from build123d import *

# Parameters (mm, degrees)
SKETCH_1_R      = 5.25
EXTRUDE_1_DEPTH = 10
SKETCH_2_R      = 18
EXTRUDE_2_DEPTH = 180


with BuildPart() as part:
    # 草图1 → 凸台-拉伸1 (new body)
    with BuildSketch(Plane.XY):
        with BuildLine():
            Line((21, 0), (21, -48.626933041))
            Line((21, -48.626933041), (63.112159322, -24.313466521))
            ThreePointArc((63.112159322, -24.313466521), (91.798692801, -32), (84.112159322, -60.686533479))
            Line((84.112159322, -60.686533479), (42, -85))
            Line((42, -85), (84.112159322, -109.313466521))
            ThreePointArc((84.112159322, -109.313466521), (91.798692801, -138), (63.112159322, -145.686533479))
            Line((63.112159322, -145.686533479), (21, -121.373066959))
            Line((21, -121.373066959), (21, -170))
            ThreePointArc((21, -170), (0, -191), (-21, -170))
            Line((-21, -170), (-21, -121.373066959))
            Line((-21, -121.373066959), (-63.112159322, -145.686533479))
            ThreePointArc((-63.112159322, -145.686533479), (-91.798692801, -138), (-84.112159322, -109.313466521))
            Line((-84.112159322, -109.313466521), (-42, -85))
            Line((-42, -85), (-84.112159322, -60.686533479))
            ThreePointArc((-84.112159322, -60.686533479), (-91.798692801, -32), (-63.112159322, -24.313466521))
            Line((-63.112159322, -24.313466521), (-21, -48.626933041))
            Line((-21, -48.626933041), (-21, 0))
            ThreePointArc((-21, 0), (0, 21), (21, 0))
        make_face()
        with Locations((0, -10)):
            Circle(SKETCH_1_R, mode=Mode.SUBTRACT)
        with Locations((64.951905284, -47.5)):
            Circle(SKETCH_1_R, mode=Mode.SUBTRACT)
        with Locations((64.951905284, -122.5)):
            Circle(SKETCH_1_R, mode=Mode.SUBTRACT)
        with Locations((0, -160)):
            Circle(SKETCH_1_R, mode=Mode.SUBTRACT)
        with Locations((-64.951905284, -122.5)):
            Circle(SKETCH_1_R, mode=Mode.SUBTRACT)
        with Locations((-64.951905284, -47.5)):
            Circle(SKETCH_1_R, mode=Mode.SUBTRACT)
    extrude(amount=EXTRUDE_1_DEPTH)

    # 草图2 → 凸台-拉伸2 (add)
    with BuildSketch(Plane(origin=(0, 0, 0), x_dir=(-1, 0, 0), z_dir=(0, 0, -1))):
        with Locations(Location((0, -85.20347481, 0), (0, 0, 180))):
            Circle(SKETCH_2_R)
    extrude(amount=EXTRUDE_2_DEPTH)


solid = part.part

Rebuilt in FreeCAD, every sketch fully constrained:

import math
import FreeCAD as App
import Part
import Sketcher

V = App.Vector
Q = App.Units.Quantity

doc = App.newDocument("Part")
body = doc.addObject("PartDesign::Body", "Body")

# Sketch on XY plane
sketch1 = body.newObject("Sketcher::SketchObject", "Sketch")
sketch1.AttachmentSupport = (doc.getObject("XY_Plane"), [""])
sketch1.MapMode = "FlatFace"
sketch1.addGeometry(Part.LineSegment(V(21, -49, 0), V(21, 0, 0)), False)
sketch1.addGeometry(Part.ArcOfCircle(Part.Circle(V(0, 0, 0), V(0, 0, 1), 21), math.radians(0), math.radians(180)), False)
sketch1.addGeometry(Part.LineSegment(V(-21, 0, 0), V(-21, -49, 0)), False)
sketch1.addGeometry(Part.LineSegment(V(-21, -49, 0), V(-63, -24, 0)), False)
sketch1.addGeometry(Part.ArcOfCircle(Part.Circle(V(-74, -42, 0), V(0, 0, 1), 21), math.radians(60), math.radians(240)), False)
sketch1.addGeometry(Part.LineSegment(V(-84, -61, 0), V(-42, -85, 0)), False)
sketch1.addGeometry(Part.LineSegment(V(-42, -85, 0), V(-84, -109, 0)), False)
sketch1.addGeometry(Part.ArcOfCircle(Part.Circle(V(-74, -128, 0), V(0, 0, 1), 21), math.radians(120), math.radians(300)), False)
sketch1.addGeometry(Part.LineSegment(V(-63, -146, 0), V(-21, -121, 0)), False)
sketch1.addGeometry(Part.LineSegment(V(-21, -121, 0), V(-21, -170, 0)), False)
sketch1.addGeometry(Part.ArcOfCircle(Part.Circle(V(0, -170, 0), V(0, 0, 1), 21), math.radians(180), math.radians(360)), False)
sketch1.addGeometry(Part.LineSegment(V(21, -170, 0), V(21, -121, 0)), False)
sketch1.addGeometry(Part.LineSegment(V(21, -121, 0), V(63, -146, 0)), False)
sketch1.addGeometry(Part.ArcOfCircle(Part.Circle(V(74, -128, 0), V(0, 0, 1), 21), math.radians(-120), math.radians(60)), False)
sketch1.addGeometry(Part.LineSegment(V(84, -109, 0), V(42, -85, 0)), False)
sketch1.addGeometry(Part.LineSegment(V(42, -85, 0), V(84, -61, 0)), False)
sketch1.addGeometry(Part.ArcOfCircle(Part.Circle(V(74, -42, 0), V(0, 0, 1), 21), math.radians(-60), math.radians(120)), False)
sketch1.addGeometry(Part.LineSegment(V(63, -24, 0), V(21, -49, 0)), False)
sketch1.addGeometry(Part.Circle(V(65, -122, 0), V(0, 0, 1), 5), False)
sketch1.addGeometry(Part.Circle(V(0, -160, 0), V(0, 0, 1), 5), False)
sketch1.addGeometry(Part.Circle(V(-65, -122, 0), V(0, 0, 1), 5), False)
sketch1.addGeometry(Part.Circle(V(65, -48, 0), V(0, 0, 1), 5), False)
sketch1.addGeometry(Part.Circle(V(-65, -48, 0), V(0, 0, 1), 5), False)
sketch1.addGeometry(Part.Circle(V(0, -10, 0), V(0, 0, 1), 5), False)
sketch1.addConstraint(Sketcher.Constraint("Tangent", 0, 2, 1, 1))
sketch1.addConstraint(Sketcher.Constraint("Tangent", 1, 2, 2, 1))
sketch1.addConstraint(Sketcher.Constraint("Coincident", 2, 2, 3, 1))
sketch1.addConstraint(Sketcher.Constraint("Tangent", 3, 2, 4, 1))
sketch1.addConstraint(Sketcher.Constraint("Tangent", 4, 2, 5, 1))
sketch1.addConstraint(Sketcher.Constraint("Coincident", 5, 2, 6, 1))
sketch1.addConstraint(Sketcher.Constraint("Tangent", 6, 2, 7, 1))
sketch1.addConstraint(Sketcher.Constraint("Tangent", 7, 2, 8, 1))
sketch1.addConstraint(Sketcher.Constraint("Coincident", 8, 2, 9, 1))
sketch1.addConstraint(Sketcher.Constraint("Tangent", 9, 2, 10, 1))
sketch1.addConstraint(Sketcher.Constraint("Tangent", 10, 2, 11, 1))
sketch1.addConstraint(Sketcher.Constraint("Coincident", 11, 2, 12, 1))
sketch1.addConstraint(Sketcher.Constraint("Tangent", 12, 2, 13, 1))
sketch1.addConstraint(Sketcher.Constraint("Tangent", 13, 2, 14, 1))
sketch1.addConstraint(Sketcher.Constraint("Coincident", 14, 2, 15, 1))
sketch1.addConstraint(Sketcher.Constraint("Tangent", 15, 2, 16, 1))
sketch1.addConstraint(Sketcher.Constraint("Tangent", 16, 2, 17, 1))
sketch1.addConstraint(Sketcher.Constraint("Coincident", 17, 2, 0, 1))
sketch1.addConstraint(Sketcher.Constraint("Vertical", 0))
sketch1.addConstraint(Sketcher.Constraint("Vertical", 2))
sketch1.addConstraint(Sketcher.Constraint("Vertical", 9))
sketch1.addConstraint(Sketcher.Constraint("Vertical", 11))
sketch1.addConstraint(Sketcher.Constraint("Coincident", 1, 3, -1, 1))
sketch1.addConstraint(Sketcher.Constraint("Equal", 1, 4))
sketch1.addConstraint(Sketcher.Constraint("Equal", 4, 7))
sketch1.addConstraint(Sketcher.Constraint("Equal", 7, 10))
sketch1.addConstraint(Sketcher.Constraint("Equal", 10, 13))
sketch1.addConstraint(Sketcher.Constraint("Equal", 13, 16))
sketch1.addConstraint(Sketcher.Constraint("Equal", 18, 19))
sketch1.addConstraint(Sketcher.Constraint("Equal", 19, 20))
sketch1.addConstraint(Sketcher.Constraint("Equal", 20, 21))
sketch1.addConstraint(Sketcher.Constraint("Equal", 21, 22))
sketch1.addConstraint(Sketcher.Constraint("Equal", 22, 23))
sketch1.addConstraint(Sketcher.Constraint("Symmetric", 7, 3, 13, 3, -2))
sketch1.addConstraint(Sketcher.Constraint("Symmetric", 4, 3, 16, 3, -2))
sketch1.addConstraint(Sketcher.Constraint("Symmetric", 18, 3, 20, 3, -2))
sketch1.addConstraint(Sketcher.Constraint("Symmetric", 21, 3, 22, 3, -2))
sketch1.addConstraint(Sketcher.Constraint("Symmetric", 8, 2, 11, 2, -2))
sketch1.addConstraint(Sketcher.Constraint("Symmetric", 5, 2, 14, 2, -2))
sketch1.addConstraint(Sketcher.Constraint("PointOnObject", 19, 3, -2))
sketch1.addConstraint(Sketcher.Constraint("PointOnObject", 23, 3, -2))
sketch1.addConstraint(Sketcher.Constraint("Parallel", 3, 5))
sketch1.addConstraint(Sketcher.Constraint("Parallel", 6, 8))
sketch1.addConstraint(Sketcher.Constraint("Parallel", 5, 12))
sketch1.addConstraint(Sketcher.Constraint("Parallel", 15, 17))
sketch1.addConstraint(Sketcher.Constraint("Vertical", 4, 3, 7, 3))
sketch1.addConstraint(Sketcher.Constraint("Vertical", 18, 3, 21, 3))
sketch1.addConstraint(Sketcher.Constraint("Equal", 2, 9))
sketch1.addConstraint(Sketcher.Constraint("Equal", 3, 5))
sketch1.addConstraint(Sketcher.Constraint("Radius", 1, 21.0))
sketch1.addConstraint(Sketcher.Constraint("Diameter", 18, 10.5))
sketch1.addConstraint(Sketcher.Constraint("Angle", 3, Q("150 deg")))
sketch1.addConstraint(Sketcher.Constraint("DistanceY", 10, 3, -1, 1, 170.0))
sketch1.addConstraint(Sketcher.Constraint("DistanceY", 19, 3, -1, 1, 160.0))
sketch1.addConstraint(Sketcher.Constraint("DistanceY", 23, 3, -1, 1, 10.0))
sketch1.addConstraint(Sketcher.Constraint("DistanceY", 7, 3, 4, 3, 85.0))
sketch1.addConstraint(Sketcher.Constraint("DistanceY", 13, 3, 18, 3, 5.0))
sketch1.addConstraint(Sketcher.Constraint("DistanceY", 21, 3, 16, 3, 5.0))
sketch1.addConstraint(Sketcher.Constraint("DistanceX", 20, 3, 18, 3, 129.903811))
pad1 = body.newObject("PartDesign::Pad", "Pad")
pad1.Profile = sketch1
pad1.Length = 10

# Sketch on XY plane
sketch2 = body.newObject("Sketcher::SketchObject", "Sketch001")
sketch2.AttachmentSupport = (doc.getObject("XY_Plane"), [""])
sketch2.MapMode = "FlatFace"
sketch2.addGeometry(Part.Circle(V(0, -85, 0), V(0, 0, 1), 18), False)
sketch2.addConstraint(Sketcher.Constraint("PointOnObject", 0, 3, -2))
sketch2.addConstraint(Sketcher.Constraint("Diameter", 0, 36.0))
sketch2.addConstraint(Sketcher.Constraint("DistanceY", 0, 3, -1, 1, 85.203475))
pad2 = body.newObject("PartDesign::Pad", "Pad001")
pad2.Profile = sketch2
pad2.Length = 180
pad2.Reversed = True

doc.recompute()
